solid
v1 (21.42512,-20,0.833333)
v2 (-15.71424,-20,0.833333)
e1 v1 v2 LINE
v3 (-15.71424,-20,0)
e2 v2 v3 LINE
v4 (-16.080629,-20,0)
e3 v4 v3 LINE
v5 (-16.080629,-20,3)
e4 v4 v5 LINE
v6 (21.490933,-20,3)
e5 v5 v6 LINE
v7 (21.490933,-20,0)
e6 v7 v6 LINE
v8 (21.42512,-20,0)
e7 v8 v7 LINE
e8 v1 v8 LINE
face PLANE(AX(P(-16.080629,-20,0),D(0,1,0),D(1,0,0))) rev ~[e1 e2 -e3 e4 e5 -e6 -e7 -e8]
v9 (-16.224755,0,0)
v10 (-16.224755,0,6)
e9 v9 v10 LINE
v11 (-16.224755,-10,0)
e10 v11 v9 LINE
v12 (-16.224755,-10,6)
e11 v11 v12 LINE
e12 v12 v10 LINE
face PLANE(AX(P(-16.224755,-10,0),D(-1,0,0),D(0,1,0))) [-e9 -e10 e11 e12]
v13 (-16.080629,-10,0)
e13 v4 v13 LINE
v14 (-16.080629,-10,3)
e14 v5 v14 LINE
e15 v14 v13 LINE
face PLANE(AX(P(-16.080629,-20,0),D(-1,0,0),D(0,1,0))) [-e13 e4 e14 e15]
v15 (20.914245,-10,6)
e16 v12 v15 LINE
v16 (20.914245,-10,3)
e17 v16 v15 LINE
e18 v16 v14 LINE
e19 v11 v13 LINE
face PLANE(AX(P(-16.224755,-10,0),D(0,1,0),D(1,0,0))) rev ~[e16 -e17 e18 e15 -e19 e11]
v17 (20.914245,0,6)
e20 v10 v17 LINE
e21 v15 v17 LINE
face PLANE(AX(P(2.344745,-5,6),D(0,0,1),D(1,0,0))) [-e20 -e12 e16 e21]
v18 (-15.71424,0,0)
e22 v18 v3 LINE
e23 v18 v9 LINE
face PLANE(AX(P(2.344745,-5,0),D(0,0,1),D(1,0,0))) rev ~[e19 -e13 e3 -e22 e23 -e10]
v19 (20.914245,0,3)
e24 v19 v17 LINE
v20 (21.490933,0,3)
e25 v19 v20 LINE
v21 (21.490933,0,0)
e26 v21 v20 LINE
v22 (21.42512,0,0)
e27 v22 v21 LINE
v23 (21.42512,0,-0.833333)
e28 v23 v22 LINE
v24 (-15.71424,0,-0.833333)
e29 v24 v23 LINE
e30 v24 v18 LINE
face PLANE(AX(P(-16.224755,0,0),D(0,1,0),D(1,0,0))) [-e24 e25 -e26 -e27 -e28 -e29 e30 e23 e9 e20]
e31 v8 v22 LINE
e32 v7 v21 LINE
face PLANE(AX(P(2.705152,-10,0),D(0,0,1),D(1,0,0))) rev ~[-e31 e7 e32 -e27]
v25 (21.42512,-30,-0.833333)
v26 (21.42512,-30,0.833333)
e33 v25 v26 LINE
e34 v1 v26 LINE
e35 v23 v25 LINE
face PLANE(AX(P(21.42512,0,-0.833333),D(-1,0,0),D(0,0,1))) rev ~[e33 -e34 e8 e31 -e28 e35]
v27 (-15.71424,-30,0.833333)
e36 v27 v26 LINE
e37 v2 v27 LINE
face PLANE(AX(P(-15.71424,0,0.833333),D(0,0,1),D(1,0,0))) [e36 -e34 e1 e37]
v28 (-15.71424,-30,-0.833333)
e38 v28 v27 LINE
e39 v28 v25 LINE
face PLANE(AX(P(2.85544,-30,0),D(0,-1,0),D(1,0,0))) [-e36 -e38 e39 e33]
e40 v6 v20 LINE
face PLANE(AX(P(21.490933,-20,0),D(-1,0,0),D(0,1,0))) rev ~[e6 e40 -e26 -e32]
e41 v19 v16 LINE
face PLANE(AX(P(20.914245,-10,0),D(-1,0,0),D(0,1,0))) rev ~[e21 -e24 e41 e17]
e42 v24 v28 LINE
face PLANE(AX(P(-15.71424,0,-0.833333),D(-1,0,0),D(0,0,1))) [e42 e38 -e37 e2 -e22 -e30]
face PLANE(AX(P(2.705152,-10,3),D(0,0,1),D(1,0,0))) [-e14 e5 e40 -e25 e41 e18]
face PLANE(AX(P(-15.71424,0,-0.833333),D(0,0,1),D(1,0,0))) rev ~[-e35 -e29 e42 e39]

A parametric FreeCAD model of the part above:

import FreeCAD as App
import Part
import Sketcher
from FreeCAD import Vector
Q = App.Units.Quantity


def add_polygon(sketch, points):
    """Adds a closed chain of lines whose ends are joined by coincident constraints."""
    first, n = sketch.GeometryCount, len(points)
    for a, b in zip(points, points[1:] + points[:1]):
        sketch.addGeometry(Part.LineSegment(App.Vector(*a, 0), App.Vector(*b, 0)), False)
    for i in range(n):
        sketch.addConstraint(Sketcher.Constraint("Coincident", first + i, 2, first + (i + 1) % n, 1))

doc = App.newDocument("Part")
params = doc.addObject("Spreadsheet::Sheet", "Params")
for row, (alias, value) in enumerate([
    ("pad1_length", "30 mm"),
    ("sketch2_height", "20 mm"),
    ("pad2_length", "3 mm"),
    ("sketch3_height", "10 mm"),
    ("pad3_length", "6 mm"),
], start=1):
    params.set(f"A{row}", alias)
    params.set(f"B{row}", "=" + value)
    params.setAlias(f"B{row}", alias)

body = doc.addObject("PartDesign::Body", "Body")

# Sketch on XZ plane
sketch1 = body.newObject("Sketcher::SketchObject", "Sketch")
sketch1.AttachmentSupport = (doc.getObject("XZ_Plane"), [""])
sketch1.MapMode = "FlatFace"
add_polygon(sketch1, [(-15.71424, 0.833333), (-15.71424, -0.833333), (21.42512, -0.833333), (21.42512, 0.833333)])  # lines 0-3
sketch1.addConstraint(Sketcher.Constraint("Vertical", 0))
sketch1.addConstraint(Sketcher.Constraint("Horizontal", 1))
sketch1.addConstraint(Sketcher.Constraint("Vertical", 2))
sketch1.addConstraint(Sketcher.Constraint("Horizontal", 3))
sketch1.addConstraint(Sketcher.Constraint("DistanceX", 1, 1, 1, 2, Q("37.13936 mm")))
sketch1.addConstraint(Sketcher.Constraint("DistanceY", 0, 2, 0, 1, Q("1.666666 mm")))
sketch1.addConstraint(Sketcher.Constraint("DistanceX", 0, 2, -1, 1, Q("15.71424 mm")))
sketch1.addConstraint(Sketcher.Constraint("DistanceY", 0, 2, -1, 1, Q("0.833333 mm")))
pad1 = body.newObject("PartDesign::Pad", "Pad")
pad1.Profile = sketch1
pad1.setExpression("Length", "Params.pad1_length")

# Sketch on XY plane
sketch2 = body.newObject("Sketcher::SketchObject", "Sketch001")
sketch2.AttachmentSupport = (doc.getObject("XY_Plane"), [""])
sketch2.MapMode = "FlatFace"
add_polygon(sketch2, [(-16.080629, 0), (-16.080629, -20), (21.490933, -20), (21.490933, 0)])  # lines 0-3
sketch2.addConstraint(Sketcher.Constraint("Vertical", 0))
sketch2.addConstraint(Sketcher.Constraint("Horizontal", 1))
sketch2.addConstraint(Sketcher.Constraint("Vertical", 2))
sketch2.addConstraint(Sketcher.Constraint("Horizontal", 3))
sketch2.addConstraint(Sketcher.Constraint("PointOnObject", 2, 2, -1))
sketch2.addConstraint(Sketcher.Constraint("DistanceY", 0, 2, 0, 1, Q("20 mm")))
sketch2.addConstraint(Sketcher.Constraint("DistanceX", 1, 1, 1, 2, Q("37.571562 mm")))
sketch2.addConstraint(Sketcher.Constraint("DistanceX", 0, 2, -1, 1, Q("16.080629 mm")))
sketch2.setExpression("Constraints[9]", "Params.sketch2_height")
pad2 = body.newObject("PartDesign::Pad", "Pad001")
pad2.Profile = sketch2
pad2.setExpression("Length", "Params.pad2_length")

# Sketch on XY plane
sketch3 = body.newObject("Sketcher::SketchObject", "Sketch002")
sketch3.AttachmentSupport = (doc.getObject("XY_Plane"), [""])
sketch3.MapMode = "FlatFace"
add_polygon(sketch3, [(-16.224755, 0), (-16.224755, -10), (20.914245, -10), (20.914245, 0)])  # lines 0-3
sketch3.addConstraint(Sketcher.Constraint("Vertical", 0))
sketch3.addConstraint(Sketcher.Constraint("Horizontal", 1))
sketch3.addConstraint(Sketcher.Constraint("Vertical", 2))
sketch3.addConstraint(Sketcher.Constraint("Horizontal", 3))
sketch3.addConstraint(Sketcher.Constraint("PointOnObject", 2, 2, -1))
sketch3.addConstraint(Sketcher.Constraint("DistanceY", 0, 2, 0, 1, Q("10 mm")))
sketch3.addConstraint(Sketcher.Constraint("DistanceX", 1, 1, 1, 2, Q("37.139 mm")))
sketch3.addConstraint(Sketcher.Constraint("DistanceX", 0, 2, -1, 1, Q("16.224755 mm")))
sketch3.setExpression("Constraints[9]", "Params.sketch3_height")
pad3 = body.newObject("PartDesign::Pad", "Pad002")
pad3.Profile = sketch3
pad3.setExpression("Length", "Params.pad3_length")

doc.recompute()
